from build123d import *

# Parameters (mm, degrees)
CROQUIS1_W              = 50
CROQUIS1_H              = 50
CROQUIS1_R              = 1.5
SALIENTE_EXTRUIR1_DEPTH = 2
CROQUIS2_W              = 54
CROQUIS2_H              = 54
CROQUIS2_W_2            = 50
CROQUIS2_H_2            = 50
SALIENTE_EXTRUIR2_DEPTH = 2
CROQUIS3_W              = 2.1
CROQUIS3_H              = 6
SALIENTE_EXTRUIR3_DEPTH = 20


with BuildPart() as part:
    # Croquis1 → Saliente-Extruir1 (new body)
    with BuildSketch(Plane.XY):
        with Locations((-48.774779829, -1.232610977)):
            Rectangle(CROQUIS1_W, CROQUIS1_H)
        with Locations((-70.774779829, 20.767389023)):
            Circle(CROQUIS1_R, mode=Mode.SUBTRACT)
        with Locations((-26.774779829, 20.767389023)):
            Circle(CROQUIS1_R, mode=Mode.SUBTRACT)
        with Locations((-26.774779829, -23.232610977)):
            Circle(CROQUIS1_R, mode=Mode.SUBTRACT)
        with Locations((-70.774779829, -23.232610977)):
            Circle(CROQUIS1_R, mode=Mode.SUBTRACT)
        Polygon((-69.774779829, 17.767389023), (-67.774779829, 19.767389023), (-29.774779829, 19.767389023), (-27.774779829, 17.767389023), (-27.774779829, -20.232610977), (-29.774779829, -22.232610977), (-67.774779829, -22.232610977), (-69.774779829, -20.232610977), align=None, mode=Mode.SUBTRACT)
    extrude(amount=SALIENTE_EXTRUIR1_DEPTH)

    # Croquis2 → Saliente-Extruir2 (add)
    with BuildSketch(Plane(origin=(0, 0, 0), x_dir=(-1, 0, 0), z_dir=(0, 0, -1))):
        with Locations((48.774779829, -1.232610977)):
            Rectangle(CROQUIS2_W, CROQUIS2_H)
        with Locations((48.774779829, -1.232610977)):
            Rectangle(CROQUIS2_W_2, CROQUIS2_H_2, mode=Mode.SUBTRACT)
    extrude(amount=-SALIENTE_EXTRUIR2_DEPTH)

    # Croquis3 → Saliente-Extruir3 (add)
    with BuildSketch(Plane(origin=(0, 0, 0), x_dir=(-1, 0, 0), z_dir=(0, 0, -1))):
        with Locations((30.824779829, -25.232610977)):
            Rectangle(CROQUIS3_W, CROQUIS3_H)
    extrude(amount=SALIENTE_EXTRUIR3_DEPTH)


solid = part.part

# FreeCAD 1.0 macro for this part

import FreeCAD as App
import Part
import Sketcher

V = App.Vector
Q = App.Units.Quantity


def add_polygon(sketch, points):
    """Adds a closed chain of lines whose ends are joined by coincident constraints."""
    first, n = sketch.GeometryCount, len(points)
    for a, b in zip(points, points[1:] + points[:1]):
        sketch.addGeometry(Part.LineSegment(App.Vector(*a, 0), App.Vector(*b, 0)), False)
    for i in range(n):
        sketch.addConstraint(Sketcher.Constraint("Coincident", first + i, 2, first + (i + 1) % n, 1))

doc = App.newDocument("Part")
body = doc.addObject("PartDesign::Body", "Body")

# Sketch on XY plane
sketch1 = body.newObject("Sketcher::SketchObject", "Sketch")
sketch1.AttachmentSupport = (doc.getObject("XY_Plane"), [""])
sketch1.MapMode = "FlatFace"
add_polygon(sketch1, [(-73.8, 23.8), (-73.8, -26.2), (-23.8, -26.2), (-23.8, 23.8)])  # lines 0-3
sketch1.addGeometry(Part.Circle(V(-70.8, -23.2, 0), V(0, 0, 1), 1.5), False)  # 4
sketch1.addGeometry(Part.Circle(V(-26.8, -23.2, 0), V(0, 0, 1), 1.5), False)  # 5
sketch1.addGeometry(Part.Circle(V(-70.8, 20.8, 0), V(0, 0, 1), 1.5), False)  # 6
add_polygon(sketch1, [(-69.8, -20.2), (-69.8, 17.8), (-67.8, 19.8), (-29.8, 19.8), (-27.8, 17.8), (-27.8, -20.2), (-29.8, -22.2), (-67.8, -22.2)])  # lines 7-14
sketch1.addGeometry(Part.Circle(V(-26.8, 20.8, 0), V(0, 0, 1), 1.5), False)  # 15
sketch1.addConstraint(Sketcher.Constraint("Vertical", 0))
sketch1.addConstraint(Sketcher.Constraint("Horizontal", 1))
sketch1.addConstraint(Sketcher.Constraint("Vertical", 2))
sketch1.addConstraint(Sketcher.Constraint("Horizontal", 3))
sketch1.addConstraint(Sketcher.Constraint("Vertical", 7))
sketch1.addConstraint(Sketcher.Constraint("Horizontal", 9))
sketch1.addConstraint(Sketcher.Constraint("Vertical", 11))
sketch1.addConstraint(Sketcher.Constraint("Horizontal", 13))
sketch1.addConstraint(Sketcher.Constraint("Equal", 4, 5))
sketch1.addConstraint(Sketcher.Constraint("Equal", 5, 6))
sketch1.addConstraint(Sketcher.Constraint("Equal", 6, 15))
sketch1.addConstraint(Sketcher.Constraint("Perpendicular", 8, 10))
sketch1.addConstraint(Sketcher.Constraint("Perpendicular", 10, 12))
sketch1.addConstraint(Sketcher.Constraint("Perpendicular", 12, 14))
sketch1.addConstraint(Sketcher.Constraint("Horizontal", 4, 3, 5, 3))
sketch1.addConstraint(Sketcher.Constraint("Horizontal", 6, 3, 15, 3))
sketch1.addConstraint(Sketcher.Constraint("Horizontal", 7, 2, 10, 2))
sketch1.addConstraint(Sketcher.Constraint("Horizontal", 11, 2, 14, 2))
sketch1.addConstraint(Sketcher.Constraint("Vertical", 4, 3, 6, 3))
sketch1.addConstraint(Sketcher.Constraint("Vertical", 5, 3, 15, 3))
sketch1.addConstraint(Sketcher.Constraint("Vertical", 9, 2, 12, 2))
sketch1.addConstraint(Sketcher.Constraint("Vertical", 8, 2, 13, 2))
sketch1.addConstraint(Sketcher.Constraint("Equal", 3, 0))
sketch1.addConstraint(Sketcher.Constraint("Equal", 13, 7))
sketch1.addConstraint(Sketcher.Constraint("Diameter", 4, Q("3 mm")))
sketch1.addConstraint(Sketcher.Constraint("DistanceX", 1, 1, 1, 2, Q("50 mm")))
sketch1.addConstraint(Sketcher.Constraint("DistanceX", 9, 1, 9, 2, Q("38 mm")))
sketch1.addConstraint(Sketcher.Constraint("DistanceX", 4, 3, 5, 3, Q("44 mm")))
sketch1.addConstraint(Sketcher.Constraint("DistanceY", 4, 3, 6, 3, Q("44 mm")))
sketch1.addConstraint(Sketcher.Constraint("DistanceX", 0, 2, 4, 3, Q("3 mm")))
sketch1.addConstraint(Sketcher.Constraint("DistanceY", 0, 2, 4, 3, Q("3 mm")))
sketch1.addConstraint(Sketcher.Constraint("DistanceX", 6, 3, 7, 2, Q("1 mm")))
sketch1.addConstraint(Sketcher.Constraint("DistanceY", 7, 2, 6, 3, Q("3 mm")))
sketch1.addConstraint(Sketcher.Constraint("DistanceX", 7, 2, 8, 2, Q("2 mm")))
sketch1.addConstraint(Sketcher.Constraint("DistanceX", 4, 3, -1, 1, Q("70.77478 mm")))
sketch1.addConstraint(Sketcher.Constraint("DistanceY", 4, 3, -1, 1, Q("23.232611 mm")))
pad1 = body.newObject("PartDesign::Pad", "Pad")
pad1.Profile = sketch1
pad1.Length = 2

# Sketch on XY plane
sketch2 = body.newObject("Sketcher::SketchObject", "Sketch001")
sketch2.AttachmentSupport = (doc.getObject("XY_Plane"), [""])
sketch2.MapMode = "FlatFace"
add_polygon(sketch2, [(-22, 26), (-22, -28), (-76, -28), (-76, 26)])  # lines 0-3
add_polygon(sketch2, [(-74, -26), (-24, -26), (-24, 24), (-74, 24)])  # lines 4-7
sketch2.addConstraint(Sketcher.Constraint("Vertical", 0))
sketch2.addConstraint(Sketcher.Constraint("Horizontal", 1))
sketch2.addConstraint(Sketcher.Constraint("Vertical", 2))
sketch2.addConstraint(Sketcher.Constraint("Horizontal", 3))
sketch2.addConstraint(Sketcher.Constraint("Horizontal", 4))
sketch2.addConstraint(Sketcher.Constraint("Vertical", 5))
sketch2.addConstraint(Sketcher.Constraint("Horizontal", 6))
sketch2.addConstraint(Sketcher.Constraint("Vertical", 7))
sketch2.addConstraint(Sketcher.Constraint("Equal", 3, 0))
sketch2.addConstraint(Sketcher.Constraint("Equal", 6, 5))
sketch2.addConstraint(Sketcher.Constraint("DistanceX", 1, 2, 1, 1, Q("54 mm")))
sketch2.addConstraint(Sketcher.Constraint("DistanceX", 4, 1, 4, 2, Q("50 mm")))
sketch2.addConstraint(Sketcher.Constraint("DistanceX", 4, 2, 0, 2, Q("2 mm")))
sketch2.addConstraint(Sketcher.Constraint("DistanceY", 0, 2, 4, 2, Q("2 mm")))
sketch2.addConstraint(Sketcher.Constraint("DistanceX", 0, 2, -1, 1, Q("21.77478 mm")))
sketch2.addConstraint(Sketcher.Constraint("DistanceY", 0, 2, -1, 1, Q("28.232611 mm")))
pad2 = body.newObject("PartDesign::Pad", "Pad001")
pad2.Profile = sketch2
pad2.Length = 2

# Sketch on XY plane
sketch3 = body.newObject("Sketcher::SketchObject", "Sketch002")
sketch3.AttachmentSupport = (doc.getObject("XY_Plane"), [""])
sketch3.MapMode = "FlatFace"
add_polygon(sketch3, [(-29.8, -22.2), (-29.8, -28.2), (-31.9, -28.2), (-31.9, -22.2)])  # lines 0-3
sketch3.addConstraint(Sketcher.Constraint("Vertical", 0))
sketch3.addConstraint(Sketcher.Constraint("Horizontal", 1))
sketch3.addConstraint(Sketcher.Constraint("Vertical", 2))
sketch3.addConstraint(Sketcher.Constraint("Horizontal", 3))
sketch3.addConstraint(Sketcher.Constraint("DistanceY", 0, 2, 0, 1, Q("6 mm")))
sketch3.addConstraint(Sketcher.Constraint("DistanceX", 1, 2, 1, 1, Q("2.1 mm")))
sketch3.addConstraint(Sketcher.Constraint("DistanceX", 0, 2, -1, 1, Q("29.77478 mm")))
sketch3.addConstraint(Sketcher.Constraint("DistanceY", 0, 2, -1, 1, Q("28.232611 mm")))
pad3 = body.newObject("PartDesign::Pad", "Pad002")
pad3.Profile = sketch3
pad3.Length = 20
pad3.Reversed = True

doc.recompute()
